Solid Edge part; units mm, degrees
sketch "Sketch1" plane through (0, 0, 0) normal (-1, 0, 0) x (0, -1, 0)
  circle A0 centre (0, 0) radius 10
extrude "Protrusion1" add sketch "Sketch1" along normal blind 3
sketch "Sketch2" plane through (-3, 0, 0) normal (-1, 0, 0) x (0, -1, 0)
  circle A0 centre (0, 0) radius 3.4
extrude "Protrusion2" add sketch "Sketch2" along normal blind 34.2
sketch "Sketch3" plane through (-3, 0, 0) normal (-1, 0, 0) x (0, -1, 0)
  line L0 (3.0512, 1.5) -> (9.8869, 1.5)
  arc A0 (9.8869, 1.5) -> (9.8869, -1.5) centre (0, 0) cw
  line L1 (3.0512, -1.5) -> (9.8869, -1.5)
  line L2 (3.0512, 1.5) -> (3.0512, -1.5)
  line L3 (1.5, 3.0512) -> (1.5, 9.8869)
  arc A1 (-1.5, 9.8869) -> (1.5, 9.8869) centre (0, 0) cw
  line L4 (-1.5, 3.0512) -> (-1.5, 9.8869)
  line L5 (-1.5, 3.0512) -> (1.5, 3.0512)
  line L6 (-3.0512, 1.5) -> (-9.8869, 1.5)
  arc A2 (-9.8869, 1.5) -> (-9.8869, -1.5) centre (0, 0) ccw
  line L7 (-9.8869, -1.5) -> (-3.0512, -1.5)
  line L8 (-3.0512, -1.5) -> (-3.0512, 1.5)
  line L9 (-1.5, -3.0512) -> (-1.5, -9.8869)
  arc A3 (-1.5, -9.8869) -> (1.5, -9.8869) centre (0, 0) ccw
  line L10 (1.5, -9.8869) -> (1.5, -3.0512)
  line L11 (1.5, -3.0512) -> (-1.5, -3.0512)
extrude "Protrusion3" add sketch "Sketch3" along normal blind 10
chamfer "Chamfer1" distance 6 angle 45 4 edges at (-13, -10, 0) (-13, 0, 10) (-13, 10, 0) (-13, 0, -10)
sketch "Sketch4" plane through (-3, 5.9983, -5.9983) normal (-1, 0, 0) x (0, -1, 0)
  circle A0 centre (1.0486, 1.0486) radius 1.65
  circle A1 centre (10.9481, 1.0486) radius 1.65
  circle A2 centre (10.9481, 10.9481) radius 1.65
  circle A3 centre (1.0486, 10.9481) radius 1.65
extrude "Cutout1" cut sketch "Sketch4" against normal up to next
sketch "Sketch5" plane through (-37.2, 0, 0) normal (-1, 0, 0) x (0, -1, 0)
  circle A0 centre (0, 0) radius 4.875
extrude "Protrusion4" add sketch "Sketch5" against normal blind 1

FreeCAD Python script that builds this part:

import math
import FreeCAD as App
import Part
import Sketcher


def edges_at(feature, points):
    """Names of the edges that pass closest to the given points."""
    edges = feature.Shape.Edges
    near = lambda p: min(range(len(edges)), key=lambda i: edges[i].distToShape(Part.Vertex(*p))[0])
    return sorted({f"Edge{near(p) + 1}" for p in points})

doc = App.newDocument("Part")
body = doc.addObject("PartDesign::Body", "Body")

# Sketch on YZ plane
sketch1 = doc.addObject("Sketcher::SketchObject", "Sketch")
body.addObject(sketch1)
sketch1.AttachmentSupport = (doc.YZ_Plane, [""])
sketch1.MapMode = "FlatFace"
sketch1.addGeometry(Part.Circle(App.Vector(0, 0, 0), App.Vector(0, 0, 1), 10), False)
sketch1.addConstraint([
    Sketcher.Constraint("Coincident", 0, 3, -1, 1),
    Sketcher.Constraint("Diameter", 0, 20.0),
])
pad1 = doc.addObject("PartDesign::Pad", "Pad")
body.addObject(pad1)
pad1.Profile = sketch1
pad1.Length = 3
pad1.Reversed = True

# Sketch on YZ plane
sketch2 = doc.addObject("Sketcher::SketchObject", "Sketch001")
body.addObject(sketch2)
sketch2.AttachmentSupport = (doc.YZ_Plane, [""])
sketch2.MapMode = "FlatFace"
sketch2.AttachmentOffset = App.Placement(App.Vector(0, 0, -3), App.Rotation())
sketch2.addGeometry(Part.Circle(App.Vector(0, 0, 0), App.Vector(0, 0, 1), 3.4), False)
sketch2.addConstraint([
    Sketcher.Constraint("Coincident", 0, 3, -1, 1),
    Sketcher.Constraint("Diameter", 0, 6.8),
])
pad2 = doc.addObject("PartDesign::Pad", "Pad001")
body.addObject(pad2)
pad2.Profile = sketch2
pad2.Length = 34.2
pad2.Reversed = True

# Sketch on YZ plane
sketch3 = doc.addObject("Sketcher::SketchObject", "Sketch002")
body.addObject(sketch3)
sketch3.AttachmentSupport = (doc.YZ_Plane, [""])
sketch3.MapMode = "FlatFace"
sketch3.AttachmentOffset = App.Placement(App.Vector(0, 0, -3), App.Rotation())
sketch3.addGeometry([
    Part.LineSegment(App.Vector(-9.8869, 1.5, 0), App.Vector(-3.0512, 1.5, 0)),  # 0
    Part.LineSegment(App.Vector(-3.0512, 1.5, 0), App.Vector(-3.0512, -1.5, 0)),  # 1
    Part.LineSegment(App.Vector(-3.0512, -1.5, 0), App.Vector(-9.8869, -1.5, 0)),  # 2
    Part.ArcOfCircle(Part.Circle(App.Vector(0, 0, 0), App.Vector(0, 0, 1), 10.00004), math.radians(171.373108), math.radians(188.626892)),  # 3
    Part.LineSegment(App.Vector(1.5, 3.0512, 0), App.Vector(-1.5, 3.0512, 0)),  # 4
    Part.LineSegment(App.Vector(-1.5, 3.0512, 0), App.Vector(-1.5, 9.8869, 0)),  # 5
    Part.ArcOfCircle(Part.Circle(App.Vector(0, 0, 0), App.Vector(0, 0, 1), 10.00004), math.radians(81.373108), math.radians(98.626892)),  # 6
    Part.LineSegment(App.Vector(1.5, 9.8869, 0), App.Vector(1.5, 3.0512, 0)),  # 7
    Part.LineSegment(App.Vector(3.0512, -1.5, 0), App.Vector(3.0512, 1.5, 0)),  # 8
    Part.LineSegment(App.Vector(3.0512, 1.5, 0), App.Vector(9.8869, 1.5, 0)),  # 9
    Part.ArcOfCircle(Part.Circle(App.Vector(0, 0, 0), App.Vector(0, 0, 1), 10.00004), math.radians(-8.626892), math.radians(8.626892)),  # 10
    Part.LineSegment(App.Vector(9.8869, -1.5, 0), App.Vector(3.0512, -1.5, 0)),  # 11
    Part.LineSegment(App.Vector(-1.5, -3.0512, 0), App.Vector(1.5, -3.0512, 0)),  # 12
    Part.LineSegment(App.Vector(1.5, -3.0512, 0), App.Vector(1.5, -9.8869, 0)),  # 13
    Part.ArcOfCircle(Part.Circle(App.Vector(0, 0, 0), App.Vector(0, 0, 1), 10.00004), math.radians(-98.626892), math.radians(-81.373108)),  # 14
    Part.LineSegment(App.Vector(-1.5, -9.8869, 0), App.Vector(-1.5, -3.0512, 0)),  # 15
], False)
sketch3.addConstraint([
    Sketcher.Constraint("Coincident", 0, 2, 1, 1),
    Sketcher.Constraint("Coincident", 1, 2, 2, 1),
    Sketcher.Constraint("Coincident", 2, 2, 3, 2),
    Sketcher.Constraint("Coincident", 3, 1, 0, 1),
    Sketcher.Constraint("Coincident", 4, 2, 5, 1),
    Sketcher.Constraint("Coincident", 5, 2, 6, 2),
    Sketcher.Constraint("Coincident", 6, 1, 7, 1),
    Sketcher.Constraint("Coincident", 7, 2, 4, 1),
    Sketcher.Constraint("Coincident", 8, 2, 9, 1),
    Sketcher.Constraint("Coincident", 9, 2, 10, 2),
    Sketcher.Constraint("Coincident", 10, 1, 11, 1),
    Sketcher.Constraint("Coincident", 11, 2, 8, 1),
    Sketcher.Constraint("Coincident", 12, 2, 13, 1),
    Sketcher.Constraint("Coincident", 13, 2, 14, 2),
    Sketcher.Constraint("Coincident", 14, 1, 15, 1),
    Sketcher.Constraint("Coincident", 15, 2, 12, 1),
    Sketcher.Constraint("Horizontal", 0),
    Sketcher.Constraint("Vertical", 1),
    Sketcher.Constraint("Horizontal", 2),
    Sketcher.Constraint("Horizontal", 4),
    Sketcher.Constraint("Vertical", 5),
    Sketcher.Constraint("Vertical", 7),
    Sketcher.Constraint("Vertical", 8),
    Sketcher.Constraint("Horizontal", 9),
    Sketcher.Constraint("Horizontal", 11),
    Sketcher.Constraint("Horizontal", 12),
    Sketcher.Constraint("Vertical", 13),
    Sketcher.Constraint("Vertical", 15),
    Sketcher.Constraint("Coincident", 3, 3, -1, 1),
    Sketcher.Constraint("Coincident", 6, 3, -1, 1),
    Sketcher.Constraint("Coincident", 10, 3, -1, 1),
    Sketcher.Constraint("Coincident", 14, 3, -1, 1),
    Sketcher.Constraint("Equal", 3, 6),
    Sketcher.Constraint("Equal", 6, 10),
    Sketcher.Constraint("Equal", 10, 14),
    Sketcher.Constraint("Symmetric", 1, 2, 8, 2, -1, 1),
    Sketcher.Constraint("Symmetric", 4, 2, 12, 2, -1, 1),
    Sketcher.Constraint("Horizontal", 5, 2, 6, 1),
    Sketcher.Constraint("Horizontal", 3, 1, 8, 2),
    Sketcher.Constraint("Horizontal", 2, 2, 10, 1),
    Sketcher.Constraint("Horizontal", 13, 2, 14, 1),
    Sketcher.Constraint("Equal", 12, 1),
    Sketcher.Constraint("Equal", 11, 5),
    Sketcher.Constraint("Radius", 3, 10.0),
    Sketcher.Constraint("DistanceX", 4, 2, 4, 1, 3.0),
    Sketcher.Constraint("DistanceX", 0, 1, 0, 2, 6.8357),
])
pad3 = doc.addObject("PartDesign::Pad", "Pad002")
body.addObject(pad3)
pad3.Profile = sketch3
pad3.Length = 10
pad3.Reversed = True
doc.recompute()

chamfer = doc.addObject("PartDesign::Chamfer", "Chamfer")
body.addObject(chamfer)
chamfer.Base = (pad3, edges_at(pad3, [
    (-13, -10, 0),
    (-13, 0, 10),
    (-13, 10, 0),
    (-13, 0, -10),
]))
chamfer.Size = 6

# Sketch on YZ plane
sketch4 = doc.addObject("Sketcher::SketchObject", "Sketch003")
body.addObject(sketch4)
sketch4.AttachmentSupport = (doc.YZ_Plane, [""])
sketch4.MapMode = "FlatFace"
sketch4.AttachmentOffset = App.Placement(App.Vector(0, 0, -3), App.Rotation())
sketch4.addGeometry([
    Part.Circle(App.Vector(4.9497, -4.9497, 0), App.Vector(0, 0, 1), 1.65),
    Part.Circle(App.Vector(-4.9498, -4.9497, 0), App.Vector(0, 0, 1), 1.65),
    Part.Circle(App.Vector(-4.9498, 4.9498, 0), App.Vector(0, 0, 1), 1.65),
    Part.Circle(App.Vector(4.9497, 4.9498, 0), App.Vector(0, 0, 1), 1.65),
], False)
sketch4.addConstraint([
    Sketcher.Constraint("Equal", 0, 1),
    Sketcher.Constraint("Equal", 1, 2),
    Sketcher.Constraint("Equal", 2, 3),
    Sketcher.Constraint("Symmetric", 0, 3, 2, 3, -1, 1),
    Sketcher.Constraint("Symmetric", 1, 3, 3, 3, -1, 1),
    Sketcher.Constraint("Symmetric", 0, 3, 1, 3, -2),
    Sketcher.Constraint("Diameter", 0, 3.3),
    Sketcher.Constraint("DistanceX", -1, 1, 0, 3, 4.9497),
    Sketcher.Constraint("DistanceY", 0, 3, -1, 1, 4.9497),
])
pocket1 = doc.addObject("PartDesign::Pocket", "Pocket")
body.addObject(pocket1)
pocket1.Profile = sketch4
pocket1.Type = "UpToFirst"
pocket1.Reversed = True

# Sketch on YZ plane
sketch5 = doc.addObject("Sketcher::SketchObject", "Sketch004")
body.addObject(sketch5)
sketch5.AttachmentSupport = (doc.YZ_Plane, [""])
sketch5.MapMode = "FlatFace"
sketch5.AttachmentOffset = App.Placement(App.Vector(0, 0, -37.2), App.Rotation())
sketch5.addGeometry(Part.Circle(App.Vector(0, 0, 0), App.Vector(0, 0, 1), 4.875), False)
sketch5.addConstraint([
    Sketcher.Constraint("Coincident", 0, 3, -1, 1),
    Sketcher.Constraint("Diameter", 0, 9.75),
])
pad4 = doc.addObject("PartDesign::Pad", "Pad003")
body.addObject(pad4)
pad4.Profile = sketch5
pad4.Length = 1

doc.recompute()
